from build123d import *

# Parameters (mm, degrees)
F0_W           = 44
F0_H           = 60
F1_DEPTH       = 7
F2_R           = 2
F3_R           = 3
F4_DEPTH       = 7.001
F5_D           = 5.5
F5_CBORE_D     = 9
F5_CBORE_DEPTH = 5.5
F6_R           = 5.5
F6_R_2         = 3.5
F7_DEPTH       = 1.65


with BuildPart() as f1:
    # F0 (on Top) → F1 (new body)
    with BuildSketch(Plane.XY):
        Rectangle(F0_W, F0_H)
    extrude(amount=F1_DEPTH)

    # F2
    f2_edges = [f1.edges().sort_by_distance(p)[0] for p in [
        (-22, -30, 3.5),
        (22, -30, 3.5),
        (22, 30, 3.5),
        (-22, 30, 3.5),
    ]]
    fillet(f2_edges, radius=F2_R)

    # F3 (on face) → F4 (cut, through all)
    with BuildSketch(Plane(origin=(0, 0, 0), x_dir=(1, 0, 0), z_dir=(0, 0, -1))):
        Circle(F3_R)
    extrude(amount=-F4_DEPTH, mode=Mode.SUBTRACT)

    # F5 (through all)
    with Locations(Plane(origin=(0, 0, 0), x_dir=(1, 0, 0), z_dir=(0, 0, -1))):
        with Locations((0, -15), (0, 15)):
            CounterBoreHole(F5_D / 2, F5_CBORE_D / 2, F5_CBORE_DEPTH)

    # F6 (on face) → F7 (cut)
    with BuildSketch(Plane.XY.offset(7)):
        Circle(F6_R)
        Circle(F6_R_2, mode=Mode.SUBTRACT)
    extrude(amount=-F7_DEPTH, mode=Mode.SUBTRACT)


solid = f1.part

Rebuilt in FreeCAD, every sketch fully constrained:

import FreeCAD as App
import Part
import Sketcher
from FreeCAD import Vector


def edges_at(feature, points):
    """Names of the edges that pass closest to the given points."""
    edges = feature.Shape.Edges
    near = lambda p: min(range(len(edges)), key=lambda i: edges[i].distToShape(Part.Vertex(*p))[0])
    return sorted({f"Edge{near(p) + 1}" for p in points})


def add_polygon(sketch, points):
    """Adds a closed chain of lines whose ends are joined by coincident constraints."""
    first, n = sketch.GeometryCount, len(points)
    for a, b in zip(points, points[1:] + points[:1]):
        sketch.addGeometry(Part.LineSegment(App.Vector(*a, 0), App.Vector(*b, 0)), False)
    for i in range(n):
        sketch.addConstraint(Sketcher.Constraint("Coincident", first + i, 2, first + (i + 1) % n, 1))

doc = App.newDocument("Part")
body = doc.addObject("PartDesign::Body", "Body")

# Sketch on XY plane
sketch1 = body.newObject("Sketcher::SketchObject", "Sketch")
sketch1.AttachmentSupport = (doc.getObject("XY_Plane"), [""])
sketch1.MapMode = "FlatFace"
add_polygon(sketch1, [(-22, 30), (-22, -30), (22, -30), (22, 30)])  # lines 0-3
sketch1.addConstraint(Sketcher.Constraint("Vertical", 0))
sketch1.addConstraint(Sketcher.Constraint("Horizontal", 1))
sketch1.addConstraint(Sketcher.Constraint("Vertical", 2))
sketch1.addConstraint(Sketcher.Constraint("Horizontal", 3))
sketch1.addConstraint(Sketcher.Constraint("Symmetric", 0, 2, 2, 2, -1, 1))
sketch1.addConstraint(Sketcher.Constraint("DistanceX", 1, 1, 1, 2, 44.0))
sketch1.addConstraint(Sketcher.Constraint("DistanceY", 0, 2, 0, 1, 60.0))
pad1 = body.newObject("PartDesign::Pad", "Pad")
pad1.Profile = sketch1
pad1.Length = 7
doc.recompute()

fillet = body.newObject("PartDesign::Fillet", "Fillet")
fillet.Base = (pad1, edges_at(pad1, [
    (-22, -30, 3.5),
    (22, -30, 3.5),
    (22, 30, 3.5),
    (-22, 30, 3.5),
]))
fillet.Radius = 2

# Sketch on XY plane
sketch2 = body.newObject("Sketcher::SketchObject", "Sketch001")
sketch2.AttachmentSupport = (doc.getObject("XY_Plane"), [""])
sketch2.MapMode = "FlatFace"
sketch2.addGeometry(Part.Circle(Vector(0, 0, 0), Vector(0, 0, 1), 3), False)
sketch2.addConstraint(Sketcher.Constraint("Coincident", 0, 3, -1, 1))
sketch2.addConstraint(Sketcher.Constraint("Diameter", 0, 6.0))
pocket1 = body.newObject("PartDesign::Pocket", "Pocket")
pocket1.Profile = sketch2
pocket1.Type = "ThroughAll"
pocket1.Reversed = True

# Sketch on XY plane
sketch3 = body.newObject("Sketcher::SketchObject", "Sketch002")
sketch3.AttachmentSupport = (doc.getObject("XY_Plane"), [""])
sketch3.MapMode = "FlatFace"
sketch3.addGeometry(Part.Circle(Vector(0, 15, 0), Vector(0, 0, 1), 2.8), False)
sketch3.addGeometry(Part.Circle(Vector(0, -15, 0), Vector(0, 0, 1), 2.8), False)
sketch3.addConstraint(Sketcher.Constraint("Equal", 0, 1))
sketch3.addConstraint(Sketcher.Constraint("Symmetric", 0, 3, 1, 3, -1, 1))
sketch3.addConstraint(Sketcher.Constraint("PointOnObject", 0, 3, -2))
sketch3.addConstraint(Sketcher.Constraint("Diameter", 0, 5.5))
sketch3.addConstraint(Sketcher.Constraint("DistanceY", -1, 1, 0, 3, 15.0))
doc.recompute()
hole = body.newObject("PartDesign::Hole", "Hole")
hole.Profile = sketch3
hole.ThreadType = "None"
hole.Diameter = 5.5
hole.DepthType = "ThroughAll"
hole.HoleCutType = "Counterbore"
hole.HoleCutDiameter = 9
hole.HoleCutDepth = 5.5
hole.Reversed = True

# Sketch on XY plane
sketch4 = body.newObject("Sketcher::SketchObject", "Sketch003")
sketch4.AttachmentSupport = (doc.getObject("XY_Plane"), [""])
sketch4.MapMode = "FlatFace"
sketch4.AttachmentOffset = App.Placement(Vector(0, 0, 7), App.Rotation())
sketch4.addGeometry(Part.Circle(Vector(0, 0, 0), Vector(0, 0, 1), 5.5), False)
sketch4.addGeometry(Part.Circle(Vector(0, 0, 0), Vector(0, 0, 1), 3.5), False)
sketch4.addConstraint(Sketcher.Constraint("Coincident", 0, 3, -1, 1))
sketch4.addConstraint(Sketcher.Constraint("Coincident", 1, 3, -1, 1))
sketch4.addConstraint(Sketcher.Constraint("Diameter", 0, 11.0))
sketch4.addConstraint(Sketcher.Constraint("Diameter", 1, 7.0))
pocket2 = body.newObject("PartDesign::Pocket", "Pocket001")
pocket2.Profile = sketch4
pocket2.Length = 1.65

doc.recompute()
